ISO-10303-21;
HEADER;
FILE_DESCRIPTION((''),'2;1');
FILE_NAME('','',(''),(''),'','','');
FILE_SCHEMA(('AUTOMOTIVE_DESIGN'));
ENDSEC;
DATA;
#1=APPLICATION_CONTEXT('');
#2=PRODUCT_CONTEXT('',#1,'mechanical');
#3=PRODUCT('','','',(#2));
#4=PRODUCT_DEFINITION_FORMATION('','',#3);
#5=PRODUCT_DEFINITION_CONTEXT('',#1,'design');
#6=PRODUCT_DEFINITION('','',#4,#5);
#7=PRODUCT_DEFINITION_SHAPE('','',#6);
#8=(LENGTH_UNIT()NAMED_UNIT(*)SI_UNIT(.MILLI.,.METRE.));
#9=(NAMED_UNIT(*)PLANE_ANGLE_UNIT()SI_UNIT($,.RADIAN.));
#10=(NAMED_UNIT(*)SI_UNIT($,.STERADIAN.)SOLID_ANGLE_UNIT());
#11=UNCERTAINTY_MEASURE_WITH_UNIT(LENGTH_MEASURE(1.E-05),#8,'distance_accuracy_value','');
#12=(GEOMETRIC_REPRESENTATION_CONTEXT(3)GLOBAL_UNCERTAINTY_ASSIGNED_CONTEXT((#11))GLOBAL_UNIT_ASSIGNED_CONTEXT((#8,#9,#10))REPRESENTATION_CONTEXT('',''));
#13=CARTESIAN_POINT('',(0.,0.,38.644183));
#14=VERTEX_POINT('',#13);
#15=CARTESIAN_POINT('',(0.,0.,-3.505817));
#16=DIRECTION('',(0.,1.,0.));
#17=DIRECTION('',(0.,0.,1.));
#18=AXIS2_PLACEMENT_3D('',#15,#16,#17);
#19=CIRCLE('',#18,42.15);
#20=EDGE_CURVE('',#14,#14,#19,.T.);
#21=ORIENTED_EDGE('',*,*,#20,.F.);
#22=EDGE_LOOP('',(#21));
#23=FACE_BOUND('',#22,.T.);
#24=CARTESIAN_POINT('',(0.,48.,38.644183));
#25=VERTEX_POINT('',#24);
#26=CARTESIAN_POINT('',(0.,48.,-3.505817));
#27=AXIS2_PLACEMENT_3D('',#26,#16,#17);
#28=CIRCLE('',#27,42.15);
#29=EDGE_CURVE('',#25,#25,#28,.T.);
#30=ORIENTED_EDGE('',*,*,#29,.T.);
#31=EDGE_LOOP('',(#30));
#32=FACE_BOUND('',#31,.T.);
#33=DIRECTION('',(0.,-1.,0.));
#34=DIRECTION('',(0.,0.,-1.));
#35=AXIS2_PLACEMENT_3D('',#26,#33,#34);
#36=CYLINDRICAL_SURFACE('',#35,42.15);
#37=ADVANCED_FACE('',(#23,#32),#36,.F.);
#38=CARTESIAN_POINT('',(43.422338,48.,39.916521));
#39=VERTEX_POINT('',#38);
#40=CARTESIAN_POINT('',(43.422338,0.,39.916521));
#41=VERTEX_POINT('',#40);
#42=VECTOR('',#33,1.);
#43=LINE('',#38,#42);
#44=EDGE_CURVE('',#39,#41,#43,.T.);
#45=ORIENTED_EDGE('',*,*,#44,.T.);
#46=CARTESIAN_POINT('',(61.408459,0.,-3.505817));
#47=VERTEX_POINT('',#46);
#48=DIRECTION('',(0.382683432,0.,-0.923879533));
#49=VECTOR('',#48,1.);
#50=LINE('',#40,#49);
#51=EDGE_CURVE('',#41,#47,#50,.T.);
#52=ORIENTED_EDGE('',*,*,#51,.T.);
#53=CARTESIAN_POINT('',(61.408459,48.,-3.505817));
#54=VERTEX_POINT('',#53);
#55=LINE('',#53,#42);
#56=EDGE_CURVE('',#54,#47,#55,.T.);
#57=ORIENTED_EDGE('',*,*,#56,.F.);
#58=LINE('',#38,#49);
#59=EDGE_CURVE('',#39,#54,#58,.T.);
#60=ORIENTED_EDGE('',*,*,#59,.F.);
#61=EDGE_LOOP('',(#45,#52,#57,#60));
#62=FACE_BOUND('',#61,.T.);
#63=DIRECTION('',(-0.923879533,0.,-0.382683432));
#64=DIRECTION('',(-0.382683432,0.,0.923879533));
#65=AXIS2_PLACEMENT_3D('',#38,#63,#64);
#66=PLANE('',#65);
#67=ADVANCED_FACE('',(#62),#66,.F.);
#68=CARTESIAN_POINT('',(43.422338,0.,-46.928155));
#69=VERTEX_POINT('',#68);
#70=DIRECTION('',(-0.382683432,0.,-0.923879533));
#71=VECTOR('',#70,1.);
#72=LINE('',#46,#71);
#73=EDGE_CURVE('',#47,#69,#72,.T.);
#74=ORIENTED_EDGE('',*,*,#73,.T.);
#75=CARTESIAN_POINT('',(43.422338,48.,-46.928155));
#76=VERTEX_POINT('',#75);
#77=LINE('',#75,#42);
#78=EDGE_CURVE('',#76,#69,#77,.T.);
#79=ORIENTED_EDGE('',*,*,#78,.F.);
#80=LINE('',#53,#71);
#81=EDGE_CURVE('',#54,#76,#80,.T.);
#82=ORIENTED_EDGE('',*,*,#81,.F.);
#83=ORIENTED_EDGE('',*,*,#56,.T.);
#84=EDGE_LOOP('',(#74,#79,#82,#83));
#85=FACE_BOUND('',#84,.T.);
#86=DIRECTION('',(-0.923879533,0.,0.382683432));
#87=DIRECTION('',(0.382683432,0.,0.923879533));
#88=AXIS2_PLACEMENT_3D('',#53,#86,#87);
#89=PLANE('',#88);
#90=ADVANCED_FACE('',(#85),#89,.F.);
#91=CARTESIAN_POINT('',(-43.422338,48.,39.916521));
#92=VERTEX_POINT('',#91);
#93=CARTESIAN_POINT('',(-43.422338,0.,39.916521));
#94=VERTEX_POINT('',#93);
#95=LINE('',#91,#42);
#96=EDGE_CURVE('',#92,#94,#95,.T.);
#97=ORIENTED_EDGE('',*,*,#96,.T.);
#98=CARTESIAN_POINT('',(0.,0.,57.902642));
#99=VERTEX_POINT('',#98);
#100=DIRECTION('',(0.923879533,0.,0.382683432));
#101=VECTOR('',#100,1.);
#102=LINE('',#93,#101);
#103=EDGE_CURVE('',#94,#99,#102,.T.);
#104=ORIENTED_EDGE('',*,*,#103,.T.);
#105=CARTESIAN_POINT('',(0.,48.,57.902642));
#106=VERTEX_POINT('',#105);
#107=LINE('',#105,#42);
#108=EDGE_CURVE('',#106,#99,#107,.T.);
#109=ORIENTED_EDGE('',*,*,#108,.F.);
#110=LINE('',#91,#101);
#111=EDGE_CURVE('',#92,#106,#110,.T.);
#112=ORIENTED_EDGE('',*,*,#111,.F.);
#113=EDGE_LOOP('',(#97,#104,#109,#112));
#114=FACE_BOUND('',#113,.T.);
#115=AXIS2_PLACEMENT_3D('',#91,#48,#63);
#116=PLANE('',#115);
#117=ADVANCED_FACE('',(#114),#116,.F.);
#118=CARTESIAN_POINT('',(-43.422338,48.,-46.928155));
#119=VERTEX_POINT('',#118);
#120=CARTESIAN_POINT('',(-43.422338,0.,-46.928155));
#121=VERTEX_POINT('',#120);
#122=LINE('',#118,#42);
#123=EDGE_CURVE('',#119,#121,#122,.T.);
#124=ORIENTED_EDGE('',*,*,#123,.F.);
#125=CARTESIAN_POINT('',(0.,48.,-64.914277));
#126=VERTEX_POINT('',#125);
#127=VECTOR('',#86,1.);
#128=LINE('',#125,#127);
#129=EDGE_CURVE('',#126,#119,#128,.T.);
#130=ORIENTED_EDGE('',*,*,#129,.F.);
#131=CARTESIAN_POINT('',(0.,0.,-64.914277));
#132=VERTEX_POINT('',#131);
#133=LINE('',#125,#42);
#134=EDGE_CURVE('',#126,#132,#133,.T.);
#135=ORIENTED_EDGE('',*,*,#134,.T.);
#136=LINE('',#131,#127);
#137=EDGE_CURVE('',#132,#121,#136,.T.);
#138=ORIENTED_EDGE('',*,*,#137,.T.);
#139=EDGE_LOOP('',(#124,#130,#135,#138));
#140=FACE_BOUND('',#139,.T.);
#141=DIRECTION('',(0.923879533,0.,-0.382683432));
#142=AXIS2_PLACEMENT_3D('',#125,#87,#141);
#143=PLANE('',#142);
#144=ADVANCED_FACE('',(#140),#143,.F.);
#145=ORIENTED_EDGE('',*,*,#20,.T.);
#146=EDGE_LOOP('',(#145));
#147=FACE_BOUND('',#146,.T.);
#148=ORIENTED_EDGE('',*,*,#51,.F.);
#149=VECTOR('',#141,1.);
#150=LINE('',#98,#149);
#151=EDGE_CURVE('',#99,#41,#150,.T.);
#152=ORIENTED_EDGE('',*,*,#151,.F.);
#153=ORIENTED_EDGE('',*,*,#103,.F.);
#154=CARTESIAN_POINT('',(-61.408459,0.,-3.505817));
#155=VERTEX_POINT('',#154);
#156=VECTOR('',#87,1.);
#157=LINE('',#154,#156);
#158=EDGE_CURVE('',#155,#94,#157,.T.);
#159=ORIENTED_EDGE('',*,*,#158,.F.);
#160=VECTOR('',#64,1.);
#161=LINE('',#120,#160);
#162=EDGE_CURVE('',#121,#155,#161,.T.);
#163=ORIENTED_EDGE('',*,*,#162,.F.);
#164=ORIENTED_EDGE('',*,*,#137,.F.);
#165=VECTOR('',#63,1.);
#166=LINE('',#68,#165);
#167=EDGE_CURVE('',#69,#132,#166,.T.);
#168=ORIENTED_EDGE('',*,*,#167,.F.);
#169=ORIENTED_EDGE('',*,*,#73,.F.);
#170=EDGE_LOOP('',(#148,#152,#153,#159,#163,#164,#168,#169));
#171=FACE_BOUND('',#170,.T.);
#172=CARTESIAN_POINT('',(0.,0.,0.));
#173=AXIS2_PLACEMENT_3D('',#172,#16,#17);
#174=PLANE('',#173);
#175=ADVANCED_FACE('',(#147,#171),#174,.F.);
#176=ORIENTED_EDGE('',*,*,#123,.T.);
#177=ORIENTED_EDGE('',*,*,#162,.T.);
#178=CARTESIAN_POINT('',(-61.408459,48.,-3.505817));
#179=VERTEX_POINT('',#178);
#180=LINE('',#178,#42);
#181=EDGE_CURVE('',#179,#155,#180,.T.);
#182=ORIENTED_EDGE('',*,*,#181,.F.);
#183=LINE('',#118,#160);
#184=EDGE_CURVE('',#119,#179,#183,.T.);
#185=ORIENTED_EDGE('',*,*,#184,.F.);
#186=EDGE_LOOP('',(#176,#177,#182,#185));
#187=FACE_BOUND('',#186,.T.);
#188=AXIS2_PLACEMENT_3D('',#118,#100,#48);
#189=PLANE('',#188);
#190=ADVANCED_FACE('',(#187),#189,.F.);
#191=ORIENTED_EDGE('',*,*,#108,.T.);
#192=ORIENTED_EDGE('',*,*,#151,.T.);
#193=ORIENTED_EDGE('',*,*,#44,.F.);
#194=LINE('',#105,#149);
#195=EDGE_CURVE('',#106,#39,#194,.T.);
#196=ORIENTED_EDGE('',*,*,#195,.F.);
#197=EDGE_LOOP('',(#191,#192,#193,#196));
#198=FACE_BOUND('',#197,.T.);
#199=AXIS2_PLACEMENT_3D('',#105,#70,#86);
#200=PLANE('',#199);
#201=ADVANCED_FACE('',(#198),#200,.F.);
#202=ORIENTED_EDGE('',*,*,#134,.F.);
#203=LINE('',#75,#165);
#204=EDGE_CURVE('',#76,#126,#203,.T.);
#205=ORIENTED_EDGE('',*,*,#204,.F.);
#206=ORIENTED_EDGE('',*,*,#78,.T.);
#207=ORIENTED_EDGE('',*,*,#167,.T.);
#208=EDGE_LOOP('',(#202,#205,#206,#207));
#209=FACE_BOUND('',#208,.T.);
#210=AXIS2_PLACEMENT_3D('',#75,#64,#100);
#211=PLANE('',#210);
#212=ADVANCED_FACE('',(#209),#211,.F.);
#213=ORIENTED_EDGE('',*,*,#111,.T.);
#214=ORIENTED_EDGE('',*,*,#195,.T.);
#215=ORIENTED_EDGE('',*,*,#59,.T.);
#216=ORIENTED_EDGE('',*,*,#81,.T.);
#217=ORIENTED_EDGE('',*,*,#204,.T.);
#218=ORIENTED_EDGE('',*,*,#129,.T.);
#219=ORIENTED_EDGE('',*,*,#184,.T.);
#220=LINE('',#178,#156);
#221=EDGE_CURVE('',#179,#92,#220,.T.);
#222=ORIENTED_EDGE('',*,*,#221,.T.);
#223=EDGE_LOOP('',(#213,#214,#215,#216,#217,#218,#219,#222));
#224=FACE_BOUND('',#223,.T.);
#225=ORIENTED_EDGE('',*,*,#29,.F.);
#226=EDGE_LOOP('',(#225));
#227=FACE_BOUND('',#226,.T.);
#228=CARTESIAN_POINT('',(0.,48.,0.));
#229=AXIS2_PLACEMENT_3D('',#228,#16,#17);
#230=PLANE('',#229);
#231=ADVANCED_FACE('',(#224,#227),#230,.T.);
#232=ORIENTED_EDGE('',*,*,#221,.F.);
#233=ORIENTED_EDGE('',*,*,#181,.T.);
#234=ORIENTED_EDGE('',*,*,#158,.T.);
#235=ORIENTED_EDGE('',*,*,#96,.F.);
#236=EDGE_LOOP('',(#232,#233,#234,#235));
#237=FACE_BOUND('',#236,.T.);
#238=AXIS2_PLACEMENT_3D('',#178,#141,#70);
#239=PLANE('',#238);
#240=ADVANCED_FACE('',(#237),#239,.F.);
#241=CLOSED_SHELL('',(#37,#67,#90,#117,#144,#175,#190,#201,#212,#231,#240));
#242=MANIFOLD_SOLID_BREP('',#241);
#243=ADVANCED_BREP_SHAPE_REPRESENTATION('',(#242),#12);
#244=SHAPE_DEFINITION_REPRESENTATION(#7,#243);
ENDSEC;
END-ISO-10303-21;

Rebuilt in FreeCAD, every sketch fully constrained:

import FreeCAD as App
import Part
import Sketcher
from FreeCAD import Vector
Q = App.Units.Quantity

doc = App.newDocument("Part")
body = doc.addObject("PartDesign::Body", "Body")

# Sketch on XZ plane
sketch1 = body.newObject("Sketcher::SketchObject", "Sketch")
sketch1.AttachmentSupport = (doc.getObject("XZ_Plane"), [""])
sketch1.MapMode = "FlatFace"
sketch1.addGeometry([
    Part.LineSegment(Vector(0, 58, 0), Vector(43, 40, 0)),  # 0
    Part.LineSegment(Vector(43, 40, 0), Vector(61, -4, 0)),  # 1
    Part.LineSegment(Vector(61, -4, 0), Vector(43, -47, 0)),  # 2
    Part.LineSegment(Vector(43, -47, 0), Vector(0, -65, 0)),  # 3
    Part.LineSegment(Vector(0, -65, 0), Vector(-43, -47, 0)),  # 4
    Part.LineSegment(Vector(-43, -47, 0), Vector(-61, -4, 0)),  # 5
    Part.LineSegment(Vector(-61, -4, 0), Vector(-43, 40, 0)),  # 6
    Part.LineSegment(Vector(-43, 40, 0), Vector(0, 58, 0)),  # 7
    Part.Circle(Vector(0, -4, 0), Vector(0, 0, 1), 42),  # 8
], False)
sketch1.addConstraint([
    Sketcher.Constraint("Coincident", 0, 2, 1, 1),
    Sketcher.Constraint("Coincident", 1, 2, 2, 1),
    Sketcher.Constraint("Coincident", 2, 2, 3, 1),
    Sketcher.Constraint("Coincident", 3, 2, 4, 1),
    Sketcher.Constraint("Coincident", 4, 2, 5, 1),
    Sketcher.Constraint("Coincident", 5, 2, 6, 1),
    Sketcher.Constraint("Coincident", 6, 2, 7, 1),
    Sketcher.Constraint("Coincident", 7, 2, 0, 1),
    Sketcher.Constraint("Symmetric", 2, 2, 4, 2, -2),
    Sketcher.Constraint("Symmetric", 1, 2, 5, 2, -2),
    Sketcher.Constraint("Symmetric", 0, 2, 6, 2, -2),
    Sketcher.Constraint("PointOnObject", 8, 3, -2),
    Sketcher.Constraint("PointOnObject", 3, 2, -2),
    Sketcher.Constraint("PointOnObject", 7, 2, -2),
    Sketcher.Constraint("Perpendicular", 0, 2),
    Sketcher.Constraint("Perpendicular", 1, 3),
    Sketcher.Constraint("Perpendicular", 2, 4),
    Sketcher.Constraint("Horizontal", 8, 3, 1, 2),
    Sketcher.Constraint("Vertical", 0, 2, 2, 2),
    Sketcher.Constraint("Equal", 0, 1),
    Sketcher.Constraint("Diameter", 8, Q("84.3 mm")),
    Sketcher.Constraint("Distance", 0, Q("47 mm")),
    Sketcher.Constraint("Angle", 0, Q("-22.5 deg")),
    Sketcher.Constraint("DistanceY", -1, 1, 0, 2, Q("39.916521 mm")),
])
pad1 = body.newObject("PartDesign::Pad", "Pad")
pad1.Profile = sketch1
pad1.Length = 48
pad1.Reversed = True

doc.recompute()
